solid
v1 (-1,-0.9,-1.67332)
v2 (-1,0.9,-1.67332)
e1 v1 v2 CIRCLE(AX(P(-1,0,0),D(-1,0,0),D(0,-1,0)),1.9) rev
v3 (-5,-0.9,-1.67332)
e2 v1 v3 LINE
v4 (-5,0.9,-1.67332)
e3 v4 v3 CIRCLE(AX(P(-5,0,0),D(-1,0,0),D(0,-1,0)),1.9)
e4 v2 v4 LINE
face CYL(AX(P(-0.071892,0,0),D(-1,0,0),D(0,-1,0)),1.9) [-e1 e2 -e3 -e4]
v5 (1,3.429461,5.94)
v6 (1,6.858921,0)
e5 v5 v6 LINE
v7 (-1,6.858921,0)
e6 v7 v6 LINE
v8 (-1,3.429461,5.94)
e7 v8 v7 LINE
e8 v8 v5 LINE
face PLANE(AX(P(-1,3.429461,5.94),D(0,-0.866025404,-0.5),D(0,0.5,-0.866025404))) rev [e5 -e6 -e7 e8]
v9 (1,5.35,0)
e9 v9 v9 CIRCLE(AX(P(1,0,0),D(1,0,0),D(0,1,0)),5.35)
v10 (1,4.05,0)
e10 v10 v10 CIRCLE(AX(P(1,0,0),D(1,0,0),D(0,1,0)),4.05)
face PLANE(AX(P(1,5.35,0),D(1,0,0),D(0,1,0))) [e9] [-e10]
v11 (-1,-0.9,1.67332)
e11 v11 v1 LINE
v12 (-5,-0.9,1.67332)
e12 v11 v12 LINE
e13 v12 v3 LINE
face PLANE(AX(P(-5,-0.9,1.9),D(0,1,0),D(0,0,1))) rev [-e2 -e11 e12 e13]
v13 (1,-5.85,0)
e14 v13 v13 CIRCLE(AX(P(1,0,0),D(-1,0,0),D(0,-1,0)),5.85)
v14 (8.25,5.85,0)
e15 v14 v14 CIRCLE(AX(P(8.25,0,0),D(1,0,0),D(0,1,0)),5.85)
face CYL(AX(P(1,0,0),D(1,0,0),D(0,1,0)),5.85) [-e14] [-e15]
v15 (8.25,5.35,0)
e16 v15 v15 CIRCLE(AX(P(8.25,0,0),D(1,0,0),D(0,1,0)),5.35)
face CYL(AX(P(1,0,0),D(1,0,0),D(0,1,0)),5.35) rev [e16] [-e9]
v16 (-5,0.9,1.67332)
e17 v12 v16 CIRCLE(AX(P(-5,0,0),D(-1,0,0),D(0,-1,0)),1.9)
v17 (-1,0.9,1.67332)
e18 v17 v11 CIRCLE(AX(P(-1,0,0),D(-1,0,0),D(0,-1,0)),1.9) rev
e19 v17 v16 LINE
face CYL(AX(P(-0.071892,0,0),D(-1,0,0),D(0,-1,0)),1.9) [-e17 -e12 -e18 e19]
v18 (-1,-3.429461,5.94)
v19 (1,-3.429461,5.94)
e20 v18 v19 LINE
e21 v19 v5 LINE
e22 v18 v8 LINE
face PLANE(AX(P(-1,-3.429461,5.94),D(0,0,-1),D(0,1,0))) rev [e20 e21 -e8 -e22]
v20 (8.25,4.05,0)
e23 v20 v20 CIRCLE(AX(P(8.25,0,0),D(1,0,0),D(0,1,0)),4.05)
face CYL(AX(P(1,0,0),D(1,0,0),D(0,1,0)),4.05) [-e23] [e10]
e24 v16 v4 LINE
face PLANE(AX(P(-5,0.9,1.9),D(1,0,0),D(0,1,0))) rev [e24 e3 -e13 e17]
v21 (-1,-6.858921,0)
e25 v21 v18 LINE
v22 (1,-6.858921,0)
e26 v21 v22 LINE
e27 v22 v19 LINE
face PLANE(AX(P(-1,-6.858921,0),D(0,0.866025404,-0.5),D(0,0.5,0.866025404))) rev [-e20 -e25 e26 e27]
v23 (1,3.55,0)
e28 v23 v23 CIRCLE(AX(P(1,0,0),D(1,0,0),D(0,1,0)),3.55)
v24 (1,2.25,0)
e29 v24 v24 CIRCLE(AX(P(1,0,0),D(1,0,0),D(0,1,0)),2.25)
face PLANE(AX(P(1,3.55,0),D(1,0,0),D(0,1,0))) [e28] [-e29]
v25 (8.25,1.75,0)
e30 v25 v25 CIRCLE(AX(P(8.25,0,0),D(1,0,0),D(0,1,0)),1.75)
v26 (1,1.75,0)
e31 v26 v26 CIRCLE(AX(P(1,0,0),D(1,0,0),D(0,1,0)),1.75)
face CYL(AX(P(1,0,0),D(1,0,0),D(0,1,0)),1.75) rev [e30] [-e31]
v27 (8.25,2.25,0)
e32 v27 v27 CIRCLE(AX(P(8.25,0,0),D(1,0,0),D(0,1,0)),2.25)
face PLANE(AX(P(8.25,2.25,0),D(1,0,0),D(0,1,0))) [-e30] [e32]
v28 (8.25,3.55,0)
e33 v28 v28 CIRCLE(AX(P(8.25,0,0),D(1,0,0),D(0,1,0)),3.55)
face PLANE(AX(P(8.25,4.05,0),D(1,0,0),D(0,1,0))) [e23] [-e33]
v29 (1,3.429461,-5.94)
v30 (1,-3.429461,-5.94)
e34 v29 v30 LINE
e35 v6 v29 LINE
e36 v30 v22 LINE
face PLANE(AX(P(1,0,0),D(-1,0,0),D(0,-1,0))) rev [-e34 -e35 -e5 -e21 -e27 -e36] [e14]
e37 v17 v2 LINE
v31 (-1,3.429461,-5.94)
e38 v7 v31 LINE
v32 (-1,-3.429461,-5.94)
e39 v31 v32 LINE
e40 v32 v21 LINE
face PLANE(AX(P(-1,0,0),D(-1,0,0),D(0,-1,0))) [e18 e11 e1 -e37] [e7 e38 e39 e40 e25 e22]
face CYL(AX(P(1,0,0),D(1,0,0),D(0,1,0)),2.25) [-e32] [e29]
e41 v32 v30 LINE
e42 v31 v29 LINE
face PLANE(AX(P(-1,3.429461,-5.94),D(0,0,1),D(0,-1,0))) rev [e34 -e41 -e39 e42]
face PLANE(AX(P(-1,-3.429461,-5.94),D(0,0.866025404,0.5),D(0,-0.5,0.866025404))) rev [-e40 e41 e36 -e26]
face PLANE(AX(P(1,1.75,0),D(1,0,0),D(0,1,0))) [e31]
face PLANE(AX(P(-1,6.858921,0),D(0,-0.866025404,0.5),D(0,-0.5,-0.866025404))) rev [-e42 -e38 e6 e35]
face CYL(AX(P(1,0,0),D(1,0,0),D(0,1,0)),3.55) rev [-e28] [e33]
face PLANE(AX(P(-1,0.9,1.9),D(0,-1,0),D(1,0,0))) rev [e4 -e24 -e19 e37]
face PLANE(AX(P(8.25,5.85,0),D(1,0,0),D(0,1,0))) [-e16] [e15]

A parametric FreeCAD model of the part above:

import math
import FreeCAD as App
import Part
import Sketcher
from FreeCAD import Vector
Q = App.Units.Quantity


def add_polygon(sketch, points):
    """Adds a closed chain of lines whose ends are joined by coincident constraints."""
    first, n = sketch.GeometryCount, len(points)
    for a, b in zip(points, points[1:] + points[:1]):
        sketch.addGeometry(Part.LineSegment(App.Vector(*a, 0), App.Vector(*b, 0)), False)
    for i in range(n):
        sketch.addConstraint(Sketcher.Constraint("Coincident", first + i, 2, first + (i + 1) % n, 1))

doc = App.newDocument("Part")
body = doc.addObject("PartDesign::Body", "Body")

sketch1 = body.newObject("Sketcher::SketchObject", "Sketch")
sketch1.AttachmentSupport = (doc.getObject("XY_Plane"), [""])
sketch1.MapMode = "FlatFace"
add_polygon(sketch1, [(0, 5.85), (0, 0), (1, 0), (1, 1.75), (8.25, 1.75), (8.25, 2.25), (1, 2.25), (1, 3.55), (8.25, 3.55), (8.25, 4.05), (1, 4.05), (1, 5.35), (8.25, 5.35), (8.25, 5.85)])
sketch1.addConstraint(Sketcher.Constraint("Vertical", 0))
sketch1.addConstraint(Sketcher.Constraint("Horizontal", 1))
sketch1.addConstraint(Sketcher.Constraint("Vertical", 2))
sketch1.addConstraint(Sketcher.Constraint("Horizontal", 3))
sketch1.addConstraint(Sketcher.Constraint("Vertical", 4))
sketch1.addConstraint(Sketcher.Constraint("Horizontal", 5))
sketch1.addConstraint(Sketcher.Constraint("Vertical", 6))
sketch1.addConstraint(Sketcher.Constraint("Horizontal", 7))
sketch1.addConstraint(Sketcher.Constraint("Vertical", 8))
sketch1.addConstraint(Sketcher.Constraint("Horizontal", 9))
sketch1.addConstraint(Sketcher.Constraint("Vertical", 10))
sketch1.addConstraint(Sketcher.Constraint("Horizontal", 11))
sketch1.addConstraint(Sketcher.Constraint("Vertical", 12))
sketch1.addConstraint(Sketcher.Constraint("Horizontal", 13))
sketch1.addConstraint(Sketcher.Constraint("Coincident", 0, 2, -1, 1))
sketch1.addConstraint(Sketcher.Constraint("Vertical", 2, 2, 5, 2))
sketch1.addConstraint(Sketcher.Constraint("Vertical", 4, 2, 7, 2))
sketch1.addConstraint(Sketcher.Constraint("Vertical", 6, 2, 9, 2))
sketch1.addConstraint(Sketcher.Constraint("Vertical", 8, 2, 11, 2))
sketch1.addConstraint(Sketcher.Constraint("Equal", 4, 8))
sketch1.addConstraint(Sketcher.Constraint("Equal", 6, 10))
sketch1.addConstraint(Sketcher.Constraint("Equal", 8, 12))
sketch1.addConstraint(Sketcher.Constraint("DistanceX", 1, 1, 1, 2, Q("1 mm")))
sketch1.addConstraint(Sketcher.Constraint("DistanceY", 4, 1, 4, 2, Q("0.5 mm")))
sketch1.addConstraint(Sketcher.Constraint("DistanceY", 6, 1, 6, 2, Q("1.3 mm")))
sketch1.addConstraint(Sketcher.Constraint("DistanceX", 3, 1, 3, 2, Q("7.25 mm")))
sketch1.addConstraint(Sketcher.Constraint("DistanceY", 0, 2, 0, 1, Q("5.85 mm")))
revolution = body.newObject("PartDesign::Revolution", "Revolution")
revolution.Profile = sketch1
revolution.ReferenceAxis = (sketch1, ["H_Axis"])
revolution.Angle = 360

sketch2 = body.newObject("Sketcher::SketchObject", "Sketch001")
sketch2.AttachmentSupport = (doc.getObject("YZ_Plane"), [""])
sketch2.MapMode = "FlatFace"
add_polygon(sketch2, [(6.858921, 0), (3.429461, -5.94), (-3.429461, -5.94), (-6.858921, 0), (-3.429461, 5.94), (3.429461, 5.94)])
sketch2.addConstraint(Sketcher.Constraint("Horizontal", 1))
sketch2.addConstraint(Sketcher.Constraint("Horizontal", 4))
sketch2.addConstraint(Sketcher.Constraint("Symmetric", 0, 2, 3, 2, -1, 1))
sketch2.addConstraint(Sketcher.Constraint("Symmetric", 2, 2, 5, 2, -1, 1))
sketch2.addConstraint(Sketcher.Constraint("PointOnObject", 2, 2, -1))
sketch2.addConstraint(Sketcher.Constraint("Parallel", 2, 5))
sketch2.addConstraint(Sketcher.Constraint("Vertical", 1, 2, 3, 2))
sketch2.addConstraint(Sketcher.Constraint("Angle", 0, Q("-120 deg")))
sketch2.addConstraint(Sketcher.Constraint("DistanceY", 0, 2, -1, 1, Q("5.94 mm")))
sketch2.addConstraint(Sketcher.Constraint("DistanceX", 1, 2, 1, 1, Q("6.858921 mm")))
pad1 = body.newObject("PartDesign::Pad", "Pad")
pad1.Profile = sketch2
pad1.Length = 1
pad1.Reversed = True

sketch3 = body.newObject("Sketcher::SketchObject", "Sketch002")
sketch3.AttachmentSupport = (doc.getObject("YZ_Plane"), [""])
sketch3.MapMode = "FlatFace"
sketch3.AttachmentOffset = App.Placement(Vector(0, 0, 1), App.Rotation())
add_polygon(sketch3, [(-3.429461, 5.94), (3.429461, 5.94), (6.858921, 0), (3.429461, -5.94), (-3.429461, -5.94), (-6.858921, 0)])
sketch3.addGeometry(Part.Circle(Vector(0, 0, 0), Vector(0, 0, 1), 5.85), False)
sketch3.addConstraint(Sketcher.Constraint("Horizontal", 0))
sketch3.addConstraint(Sketcher.Constraint("Horizontal", 3))
sketch3.addConstraint(Sketcher.Constraint("Coincident", 6, 3, -1, 1))
sketch3.addConstraint(Sketcher.Constraint("Symmetric", 0, 2, 3, 2, -1, 1))
sketch3.addConstraint(Sketcher.Constraint("Symmetric", 1, 2, 4, 2, -1, 1))
sketch3.addConstraint(Sketcher.Constraint("PointOnObject", 1, 2, -1))
sketch3.addConstraint(Sketcher.Constraint("Parallel", 2, 5))
sketch3.addConstraint(Sketcher.Constraint("Vertical", 0, 2, 2, 2))
sketch3.addConstraint(Sketcher.Constraint("Diameter", 6, Q("11.7 mm")))
sketch3.addConstraint(Sketcher.Constraint("Angle", 1, Q("-60 deg")))
sketch3.addConstraint(Sketcher.Constraint("DistanceY", -1, 1, 0, 2, Q("5.94 mm")))
sketch3.addConstraint(Sketcher.Constraint("DistanceX", 0, 1, 0, 2, Q("6.858921 mm")))
pad2 = body.newObject("PartDesign::Pad", "Pad001")
pad2.Profile = sketch3
pad2.Length = 1
pad2.Reversed = True

sketch4 = body.newObject("Sketcher::SketchObject", "Sketch003")
sketch4.AttachmentSupport = (doc.getObject("XY_Plane"), [""])
sketch4.MapMode = "FlatFace"
add_polygon(sketch4, [(-5, 0.9), (-5, -0.9), (-1, -0.9), (-1, 0.9)])
sketch4.addConstraint(Sketcher.Constraint("Vertical", 0))
sketch4.addConstraint(Sketcher.Constraint("Horizontal", 1))
sketch4.addConstraint(Sketcher.Constraint("Vertical", 2))
sketch4.addConstraint(Sketcher.Constraint("Horizontal", 3))
sketch4.addConstraint(Sketcher.Constraint("DistanceX", 1, 1, 1, 2, Q("4 mm")))
sketch4.addConstraint(Sketcher.Constraint("DistanceY", 0, 2, 0, 1, Q("1.8 mm")))
sketch4.addConstraint(Sketcher.Constraint("DistanceX", 0, 2, -1, 1, Q("5 mm")))
sketch4.addConstraint(Sketcher.Constraint("DistanceY", 0, 2, -1, 1, Q("0.9 mm")))
pad3 = body.newObject("PartDesign::Pad", "Pad002")
pad3.Profile = sketch4
pad3.Length = 3.8
pad3.Midplane = True

sketch5 = body.newObject("Sketcher::SketchObject", "Sketch004")
sketch5.AttachmentSupport = (doc.getObject("YZ_Plane"), [""])
sketch5.MapMode = "FlatFace"
sketch5.AttachmentOffset = App.Placement(Vector(0, 0, -5), App.Rotation())
sketch5.addGeometry(Part.LineSegment(Vector(0.9, -1.9, 0), Vector(0, -1.9, 0)), False)
sketch5.addGeometry(Part.ArcOfCircle(Part.Circle(Vector(0, 0, 0), Vector(0, 0, 1), 1.9), math.radians(-90), math.radians(-61.726286)), False)
sketch5.addGeometry(Part.LineSegment(Vector(0.9, -1.67332, 0), Vector(0.9, -1.9, 0)), False)
sketch5.addGeometry(Part.LineSegment(Vector(0, -1.9, 0), Vector(-0.9, -1.9, 0)), False)
sketch5.addGeometry(Part.LineSegment(Vector(-0.9, -1.9, 0), Vector(-0.9, -1.67332, 0)), False)
sketch5.addGeometry(Part.ArcOfCircle(Part.Circle(Vector(0, 0, 0), Vector(0, 0, 1), 1.9), math.radians(-118.273714), math.radians(-90)), False)
sketch5.addGeometry(Part.ArcOfCircle(Part.Circle(Vector(0, 0, 0), Vector(0, 0, 1), 1.9), math.radians(90), math.radians(118.273714)), False)
sketch5.addGeometry(Part.LineSegment(Vector(-0.9, 1.67332, 0), Vector(-0.9, 1.9, 0)), False)
sketch5.addGeometry(Part.LineSegment(Vector(-0.9, 1.9, 0), Vector(0, 1.9, 0)), False)
sketch5.addGeometry(Part.ArcOfCircle(Part.Circle(Vector(0, 0, 0), Vector(0, 0, 1), 1.9), math.radians(61.726286), math.radians(90)), False)
sketch5.addGeometry(Part.LineSegment(Vector(0, 1.9, 0), Vector(0.9, 1.9, 0)), False)
sketch5.addGeometry(Part.LineSegment(Vector(0.9, 1.9, 0), Vector(0.9, 1.67332, 0)), False)
sketch5.addConstraint(Sketcher.Constraint("Tangent", 0, 2, 1, 1))
sketch5.addConstraint(Sketcher.Constraint("Coincident", 1, 2, 2, 1))
sketch5.addConstraint(Sketcher.Constraint("Coincident", 2, 2, 0, 1))
sketch5.addConstraint(Sketcher.Constraint("Coincident", 3, 2, 4, 1))
sketch5.addConstraint(Sketcher.Constraint("Coincident", 4, 2, 5, 1))
sketch5.addConstraint(Sketcher.Constraint("Tangent", 5, 2, 3, 1))
sketch5.addConstraint(Sketcher.Constraint("Coincident", 6, 2, 7, 1))
sketch5.addConstraint(Sketcher.Constraint("Coincident", 7, 2, 8, 1))
sketch5.addConstraint(Sketcher.Constraint("Tangent", 8, 2, 6, 1))
sketch5.addConstraint(Sketcher.Constraint("Tangent", 9, 2, 10, 1))
sketch5.addConstraint(Sketcher.Constraint("Coincident", 10, 2, 11, 1))
sketch5.addConstraint(Sketcher.Constraint("Coincident", 11, 2, 9, 1))
sketch5.addConstraint(Sketcher.Constraint("Horizontal", 0))
sketch5.addConstraint(Sketcher.Constraint("Vertical", 2))
sketch5.addConstraint(Sketcher.Constraint("Horizontal", 3))
sketch5.addConstraint(Sketcher.Constraint("Vertical", 4))
sketch5.addConstraint(Sketcher.Constraint("Vertical", 7))
sketch5.addConstraint(Sketcher.Constraint("Horizontal", 8))
sketch5.addConstraint(Sketcher.Constraint("Horizontal", 10))
sketch5.addConstraint(Sketcher.Constraint("Vertical", 11))
sketch5.addConstraint(Sketcher.Constraint("Coincident", 1, 3, -1, 1))
sketch5.addConstraint(Sketcher.Constraint("Coincident", 5, 3, -1, 1))
sketch5.addConstraint(Sketcher.Constraint("Coincident", 6, 3, -1, 1))
sketch5.addConstraint(Sketcher.Constraint("Coincident", 9, 3, -1, 1))
sketch5.addConstraint(Sketcher.Constraint("Equal", 1, 5))
sketch5.addConstraint(Sketcher.Constraint("Equal", 5, 6))
sketch5.addConstraint(Sketcher.Constraint("Equal", 6, 9))
sketch5.addConstraint(Sketcher.Constraint("Horizontal", 1, 2, 4, 2))
sketch5.addConstraint(Sketcher.Constraint("Horizontal", 6, 2, 11, 2))
sketch5.addConstraint(Sketcher.Constraint("Vertical", 4, 2, 6, 2))
sketch5.addConstraint(Sketcher.Constraint("Radius", 1, Q("1.9 mm")))
sketch5.addConstraint(Sketcher.Constraint("DistanceX", 0, 2, 0, 1, Q("0.9 mm")))
pocket1 = body.newObject("PartDesign::Pocket", "Pocket")
pocket1.Profile = sketch5
pocket1.Length = 4
pocket1.Reversed = True

doc.recompute()
